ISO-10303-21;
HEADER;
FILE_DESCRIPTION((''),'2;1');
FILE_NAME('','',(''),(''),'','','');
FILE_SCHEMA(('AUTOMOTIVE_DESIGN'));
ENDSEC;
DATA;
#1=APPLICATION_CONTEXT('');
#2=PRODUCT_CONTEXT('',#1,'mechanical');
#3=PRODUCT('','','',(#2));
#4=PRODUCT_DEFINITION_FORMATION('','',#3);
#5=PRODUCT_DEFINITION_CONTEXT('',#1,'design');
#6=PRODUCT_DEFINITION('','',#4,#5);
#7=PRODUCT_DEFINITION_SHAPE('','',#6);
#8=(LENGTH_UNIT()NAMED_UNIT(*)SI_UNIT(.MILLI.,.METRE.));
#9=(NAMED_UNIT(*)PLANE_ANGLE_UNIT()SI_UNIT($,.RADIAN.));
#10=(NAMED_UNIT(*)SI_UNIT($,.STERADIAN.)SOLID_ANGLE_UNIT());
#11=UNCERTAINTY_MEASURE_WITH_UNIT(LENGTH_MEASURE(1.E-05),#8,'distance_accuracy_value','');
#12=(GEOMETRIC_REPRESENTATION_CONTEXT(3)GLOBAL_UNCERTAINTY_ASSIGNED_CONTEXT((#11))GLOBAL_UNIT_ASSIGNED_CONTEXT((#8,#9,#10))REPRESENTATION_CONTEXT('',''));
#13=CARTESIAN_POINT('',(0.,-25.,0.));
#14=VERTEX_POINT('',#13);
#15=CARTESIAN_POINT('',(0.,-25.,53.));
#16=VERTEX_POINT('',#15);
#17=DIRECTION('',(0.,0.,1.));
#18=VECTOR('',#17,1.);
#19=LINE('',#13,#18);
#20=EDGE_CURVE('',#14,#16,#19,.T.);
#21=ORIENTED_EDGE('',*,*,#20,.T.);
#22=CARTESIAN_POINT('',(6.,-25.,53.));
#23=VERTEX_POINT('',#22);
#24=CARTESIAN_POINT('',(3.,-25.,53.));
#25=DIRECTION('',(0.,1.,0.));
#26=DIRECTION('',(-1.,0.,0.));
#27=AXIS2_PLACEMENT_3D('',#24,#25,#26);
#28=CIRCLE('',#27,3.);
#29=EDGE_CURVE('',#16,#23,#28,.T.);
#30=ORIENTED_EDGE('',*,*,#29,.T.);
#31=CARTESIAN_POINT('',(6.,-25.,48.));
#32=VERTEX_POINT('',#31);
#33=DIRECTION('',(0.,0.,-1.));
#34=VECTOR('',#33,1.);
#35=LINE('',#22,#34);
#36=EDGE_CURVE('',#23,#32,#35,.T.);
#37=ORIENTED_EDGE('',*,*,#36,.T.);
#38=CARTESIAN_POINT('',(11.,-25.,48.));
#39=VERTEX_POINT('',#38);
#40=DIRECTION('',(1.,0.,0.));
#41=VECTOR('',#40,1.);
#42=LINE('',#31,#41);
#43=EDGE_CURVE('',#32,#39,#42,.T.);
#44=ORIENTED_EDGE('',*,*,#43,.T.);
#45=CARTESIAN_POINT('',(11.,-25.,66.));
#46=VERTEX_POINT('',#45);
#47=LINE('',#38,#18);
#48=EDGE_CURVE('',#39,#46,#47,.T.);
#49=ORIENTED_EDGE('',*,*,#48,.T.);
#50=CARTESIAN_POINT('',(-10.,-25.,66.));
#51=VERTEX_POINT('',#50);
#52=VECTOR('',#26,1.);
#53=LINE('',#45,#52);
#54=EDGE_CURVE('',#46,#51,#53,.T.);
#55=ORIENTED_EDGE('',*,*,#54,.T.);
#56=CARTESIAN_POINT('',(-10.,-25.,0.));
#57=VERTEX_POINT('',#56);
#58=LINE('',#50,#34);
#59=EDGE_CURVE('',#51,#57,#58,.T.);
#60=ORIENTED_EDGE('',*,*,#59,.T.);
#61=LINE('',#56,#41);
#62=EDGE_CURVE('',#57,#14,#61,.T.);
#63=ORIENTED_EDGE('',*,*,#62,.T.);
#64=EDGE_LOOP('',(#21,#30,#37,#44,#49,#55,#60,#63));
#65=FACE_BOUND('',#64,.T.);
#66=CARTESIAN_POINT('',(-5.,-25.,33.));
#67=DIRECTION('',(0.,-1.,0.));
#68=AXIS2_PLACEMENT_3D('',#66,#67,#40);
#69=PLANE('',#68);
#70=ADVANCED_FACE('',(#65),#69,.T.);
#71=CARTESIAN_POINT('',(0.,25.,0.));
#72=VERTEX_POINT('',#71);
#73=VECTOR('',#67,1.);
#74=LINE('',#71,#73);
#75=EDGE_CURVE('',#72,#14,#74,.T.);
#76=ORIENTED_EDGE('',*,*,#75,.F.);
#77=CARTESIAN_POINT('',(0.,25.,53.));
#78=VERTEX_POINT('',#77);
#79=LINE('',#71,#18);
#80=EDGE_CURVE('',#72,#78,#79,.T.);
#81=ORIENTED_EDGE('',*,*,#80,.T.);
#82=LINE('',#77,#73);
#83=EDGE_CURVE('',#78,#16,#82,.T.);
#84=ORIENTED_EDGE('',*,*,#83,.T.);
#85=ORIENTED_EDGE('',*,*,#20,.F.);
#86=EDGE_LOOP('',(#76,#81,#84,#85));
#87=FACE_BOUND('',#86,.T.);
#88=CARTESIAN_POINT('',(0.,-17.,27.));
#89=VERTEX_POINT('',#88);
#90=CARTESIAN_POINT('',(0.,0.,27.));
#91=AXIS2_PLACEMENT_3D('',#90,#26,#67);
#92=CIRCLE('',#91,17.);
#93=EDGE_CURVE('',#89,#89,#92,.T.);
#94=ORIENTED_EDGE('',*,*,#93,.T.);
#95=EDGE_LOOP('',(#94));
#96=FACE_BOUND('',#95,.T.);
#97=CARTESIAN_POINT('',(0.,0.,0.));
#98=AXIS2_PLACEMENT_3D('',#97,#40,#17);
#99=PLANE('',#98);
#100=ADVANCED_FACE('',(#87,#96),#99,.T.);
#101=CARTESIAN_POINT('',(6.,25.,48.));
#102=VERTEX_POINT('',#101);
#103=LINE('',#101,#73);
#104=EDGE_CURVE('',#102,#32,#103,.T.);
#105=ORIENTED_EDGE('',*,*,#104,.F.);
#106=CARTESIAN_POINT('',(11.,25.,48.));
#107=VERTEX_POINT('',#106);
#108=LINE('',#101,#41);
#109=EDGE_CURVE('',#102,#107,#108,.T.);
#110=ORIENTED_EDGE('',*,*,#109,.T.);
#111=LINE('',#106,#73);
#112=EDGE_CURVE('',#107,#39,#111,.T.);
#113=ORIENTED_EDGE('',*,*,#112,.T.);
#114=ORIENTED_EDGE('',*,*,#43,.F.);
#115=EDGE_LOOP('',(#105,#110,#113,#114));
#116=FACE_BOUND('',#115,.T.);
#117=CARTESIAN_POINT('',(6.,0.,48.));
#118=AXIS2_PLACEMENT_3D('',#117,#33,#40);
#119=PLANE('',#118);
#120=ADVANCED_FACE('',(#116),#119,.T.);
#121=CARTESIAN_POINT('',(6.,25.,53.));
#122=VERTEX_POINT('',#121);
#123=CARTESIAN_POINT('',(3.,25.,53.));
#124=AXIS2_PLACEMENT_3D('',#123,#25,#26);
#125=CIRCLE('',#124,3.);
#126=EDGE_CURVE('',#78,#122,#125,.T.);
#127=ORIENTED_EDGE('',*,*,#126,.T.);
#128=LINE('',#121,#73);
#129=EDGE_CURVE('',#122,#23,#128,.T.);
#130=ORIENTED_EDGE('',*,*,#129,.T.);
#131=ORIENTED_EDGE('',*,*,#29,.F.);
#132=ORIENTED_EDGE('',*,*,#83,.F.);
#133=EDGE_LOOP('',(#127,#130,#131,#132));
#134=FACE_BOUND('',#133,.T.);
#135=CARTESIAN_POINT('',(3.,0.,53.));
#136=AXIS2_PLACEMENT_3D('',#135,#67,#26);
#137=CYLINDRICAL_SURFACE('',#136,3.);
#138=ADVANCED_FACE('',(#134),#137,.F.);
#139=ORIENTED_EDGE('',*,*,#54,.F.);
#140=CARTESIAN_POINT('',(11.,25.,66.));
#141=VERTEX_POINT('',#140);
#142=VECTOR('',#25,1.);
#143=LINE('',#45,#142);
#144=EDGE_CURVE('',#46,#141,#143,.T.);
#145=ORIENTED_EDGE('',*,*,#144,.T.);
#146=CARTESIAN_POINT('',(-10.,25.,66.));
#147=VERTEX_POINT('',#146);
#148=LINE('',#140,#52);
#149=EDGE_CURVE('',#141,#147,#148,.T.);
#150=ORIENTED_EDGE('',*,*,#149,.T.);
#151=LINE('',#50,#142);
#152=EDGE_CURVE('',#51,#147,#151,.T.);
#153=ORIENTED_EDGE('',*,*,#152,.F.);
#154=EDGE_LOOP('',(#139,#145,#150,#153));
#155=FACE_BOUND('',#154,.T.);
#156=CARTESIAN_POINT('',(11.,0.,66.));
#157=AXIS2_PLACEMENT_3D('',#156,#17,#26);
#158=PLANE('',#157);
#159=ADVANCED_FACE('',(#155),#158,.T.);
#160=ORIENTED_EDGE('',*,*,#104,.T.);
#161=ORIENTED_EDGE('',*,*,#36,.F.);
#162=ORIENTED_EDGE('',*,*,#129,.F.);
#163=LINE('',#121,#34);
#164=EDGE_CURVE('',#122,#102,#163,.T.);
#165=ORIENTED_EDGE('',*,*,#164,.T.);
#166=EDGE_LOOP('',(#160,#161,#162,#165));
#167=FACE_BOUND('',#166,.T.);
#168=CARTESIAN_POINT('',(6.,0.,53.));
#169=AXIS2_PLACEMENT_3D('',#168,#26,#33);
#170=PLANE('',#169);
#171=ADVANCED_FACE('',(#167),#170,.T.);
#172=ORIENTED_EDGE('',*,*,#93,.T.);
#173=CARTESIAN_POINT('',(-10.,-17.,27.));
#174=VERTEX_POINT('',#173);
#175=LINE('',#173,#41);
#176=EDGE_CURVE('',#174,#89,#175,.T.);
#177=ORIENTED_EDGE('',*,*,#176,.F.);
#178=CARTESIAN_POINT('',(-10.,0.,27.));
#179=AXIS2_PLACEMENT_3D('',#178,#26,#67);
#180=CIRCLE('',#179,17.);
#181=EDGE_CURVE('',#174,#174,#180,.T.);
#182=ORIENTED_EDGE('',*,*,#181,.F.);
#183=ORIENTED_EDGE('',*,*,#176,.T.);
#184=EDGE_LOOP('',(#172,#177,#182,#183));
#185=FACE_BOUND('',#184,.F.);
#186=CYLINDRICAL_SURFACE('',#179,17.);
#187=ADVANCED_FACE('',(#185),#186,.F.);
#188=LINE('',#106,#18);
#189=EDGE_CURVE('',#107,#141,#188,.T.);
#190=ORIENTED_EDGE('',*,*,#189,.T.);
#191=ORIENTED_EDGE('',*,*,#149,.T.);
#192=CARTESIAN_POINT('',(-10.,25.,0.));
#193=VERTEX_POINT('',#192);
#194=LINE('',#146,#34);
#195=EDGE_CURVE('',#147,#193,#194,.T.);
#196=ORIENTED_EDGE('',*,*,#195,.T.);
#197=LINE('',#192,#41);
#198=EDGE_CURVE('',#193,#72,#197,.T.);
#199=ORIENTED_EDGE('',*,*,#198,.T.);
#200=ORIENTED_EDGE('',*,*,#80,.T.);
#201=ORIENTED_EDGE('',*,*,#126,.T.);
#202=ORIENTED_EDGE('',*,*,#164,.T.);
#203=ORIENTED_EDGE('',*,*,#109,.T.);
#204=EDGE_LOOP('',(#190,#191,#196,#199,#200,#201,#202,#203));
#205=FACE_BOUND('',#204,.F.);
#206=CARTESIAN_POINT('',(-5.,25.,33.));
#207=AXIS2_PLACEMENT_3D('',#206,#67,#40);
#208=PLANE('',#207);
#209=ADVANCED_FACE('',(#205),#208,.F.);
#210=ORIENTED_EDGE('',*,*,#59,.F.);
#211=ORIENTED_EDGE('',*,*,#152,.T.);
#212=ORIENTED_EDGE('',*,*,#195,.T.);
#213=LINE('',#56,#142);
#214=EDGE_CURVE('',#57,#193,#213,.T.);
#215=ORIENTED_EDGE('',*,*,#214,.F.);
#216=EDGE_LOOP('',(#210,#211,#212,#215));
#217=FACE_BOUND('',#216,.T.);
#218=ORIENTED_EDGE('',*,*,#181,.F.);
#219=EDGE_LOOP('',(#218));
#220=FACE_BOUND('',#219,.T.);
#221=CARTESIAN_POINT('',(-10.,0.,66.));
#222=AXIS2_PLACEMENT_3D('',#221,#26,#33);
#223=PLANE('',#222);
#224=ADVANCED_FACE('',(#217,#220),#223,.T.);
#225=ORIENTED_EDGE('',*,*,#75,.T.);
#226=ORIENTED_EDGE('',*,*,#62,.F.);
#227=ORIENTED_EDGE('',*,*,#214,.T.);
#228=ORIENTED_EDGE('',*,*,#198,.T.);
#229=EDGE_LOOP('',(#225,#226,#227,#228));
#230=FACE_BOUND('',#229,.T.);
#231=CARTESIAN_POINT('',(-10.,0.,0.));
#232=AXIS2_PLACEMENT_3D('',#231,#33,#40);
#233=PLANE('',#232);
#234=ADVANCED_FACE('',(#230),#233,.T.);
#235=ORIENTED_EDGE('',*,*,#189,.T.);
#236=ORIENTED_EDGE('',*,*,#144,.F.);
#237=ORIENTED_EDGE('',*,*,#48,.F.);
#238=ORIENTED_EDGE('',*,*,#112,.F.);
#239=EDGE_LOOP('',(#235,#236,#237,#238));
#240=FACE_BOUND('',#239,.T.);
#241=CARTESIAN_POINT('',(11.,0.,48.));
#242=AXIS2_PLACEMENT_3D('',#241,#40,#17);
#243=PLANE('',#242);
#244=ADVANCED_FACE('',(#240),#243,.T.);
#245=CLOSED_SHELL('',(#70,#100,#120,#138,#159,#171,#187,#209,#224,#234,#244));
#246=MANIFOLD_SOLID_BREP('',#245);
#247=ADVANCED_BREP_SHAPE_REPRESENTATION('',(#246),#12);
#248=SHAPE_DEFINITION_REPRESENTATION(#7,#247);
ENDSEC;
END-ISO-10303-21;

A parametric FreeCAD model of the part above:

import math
import FreeCAD as App
import Part
import Sketcher

V = App.Vector

doc = App.newDocument("Part")
body = doc.addObject("PartDesign::Body", "Body")

sketch1 = body.newObject("Sketcher::SketchObject", "Sketch")
sketch1.AttachmentSupport = (doc.getObject("XZ_Plane"), [""])
sketch1.MapMode = "FlatFace"
sketch1.addGeometry([
    Part.LineSegment(V(-10, 0, 0), V(0, 0, 0)),
    Part.LineSegment(V(0, 0, 0), V(0, 53, 0)),
    Part.ArcOfCircle(Part.Circle(V(3, 53, 0), V(0, 0, 1), 3), math.radians(0), math.radians(180)),
    Part.LineSegment(V(6, 53, 0), V(6, 48, 0)),
    Part.LineSegment(V(6, 48, 0), V(11, 48, 0)),
    Part.LineSegment(V(11, 48, 0), V(11, 66, 0)),
    Part.LineSegment(V(11, 66, 0), V(-10, 66, 0)),
    Part.LineSegment(V(-10, 66, 0), V(-10, 0, 0)),
], False)
sketch1.addConstraint([
    Sketcher.Constraint("Coincident", 0, 2, 1, 1),
    Sketcher.Constraint("Tangent", 1, 2, 2, 2),
    Sketcher.Constraint("Tangent", 2, 1, 3, 1),
    Sketcher.Constraint("Coincident", 3, 2, 4, 1),
    Sketcher.Constraint("Coincident", 4, 2, 5, 1),
    Sketcher.Constraint("Coincident", 5, 2, 6, 1),
    Sketcher.Constraint("Coincident", 6, 2, 7, 1),
    Sketcher.Constraint("Coincident", 7, 2, 0, 1),
    Sketcher.Constraint("Horizontal", 0),
    Sketcher.Constraint("Vertical", 1),
    Sketcher.Constraint("Vertical", 3),
    Sketcher.Constraint("Horizontal", 4),
    Sketcher.Constraint("Vertical", 5),
    Sketcher.Constraint("Horizontal", 6),
    Sketcher.Constraint("Vertical", 7),
    Sketcher.Constraint("Coincident", 0, 2, -1, 1),
    Sketcher.Constraint("Equal", 4, 3),
    Sketcher.Constraint("Radius", 2, 3.0),
    Sketcher.Constraint("DistanceX", 0, 1, 0, 2, 10.0),
    Sketcher.Constraint("DistanceX", 4, 1, 4, 2, 5.0),
    Sketcher.Constraint("DistanceY", 1, 1, 1, 2, 53.0),
    Sketcher.Constraint("DistanceY", 5, 1, 5, 2, 18.0),
])
pad1 = body.newObject("PartDesign::Pad", "Pad")
pad1.Profile = sketch1
pad1.Length = 50
pad1.Midplane = True

sketch2 = body.newObject("Sketcher::SketchObject", "Sketch001")
sketch2.AttachmentSupport = (doc.getObject("YZ_Plane"), [""])
sketch2.MapMode = "FlatFace"
sketch2.AttachmentOffset = App.Placement(V(0, 0, -10), App.Rotation())
sketch2.addGeometry(Part.Circle(V(0, 27, 0), V(0, 0, 1), 17), False)
sketch2.addConstraint([
    Sketcher.Constraint("PointOnObject", 0, 3, -2),
    Sketcher.Constraint("Diameter", 0, 34.0),
    Sketcher.Constraint("DistanceY", -1, 1, 0, 3, 27.0),
])
pocket1 = body.newObject("PartDesign::Pocket", "Pocket")
pocket1.Profile = sketch2
pocket1.Type = "ThroughAll"
pocket1.Reversed = True

doc.recompute()
